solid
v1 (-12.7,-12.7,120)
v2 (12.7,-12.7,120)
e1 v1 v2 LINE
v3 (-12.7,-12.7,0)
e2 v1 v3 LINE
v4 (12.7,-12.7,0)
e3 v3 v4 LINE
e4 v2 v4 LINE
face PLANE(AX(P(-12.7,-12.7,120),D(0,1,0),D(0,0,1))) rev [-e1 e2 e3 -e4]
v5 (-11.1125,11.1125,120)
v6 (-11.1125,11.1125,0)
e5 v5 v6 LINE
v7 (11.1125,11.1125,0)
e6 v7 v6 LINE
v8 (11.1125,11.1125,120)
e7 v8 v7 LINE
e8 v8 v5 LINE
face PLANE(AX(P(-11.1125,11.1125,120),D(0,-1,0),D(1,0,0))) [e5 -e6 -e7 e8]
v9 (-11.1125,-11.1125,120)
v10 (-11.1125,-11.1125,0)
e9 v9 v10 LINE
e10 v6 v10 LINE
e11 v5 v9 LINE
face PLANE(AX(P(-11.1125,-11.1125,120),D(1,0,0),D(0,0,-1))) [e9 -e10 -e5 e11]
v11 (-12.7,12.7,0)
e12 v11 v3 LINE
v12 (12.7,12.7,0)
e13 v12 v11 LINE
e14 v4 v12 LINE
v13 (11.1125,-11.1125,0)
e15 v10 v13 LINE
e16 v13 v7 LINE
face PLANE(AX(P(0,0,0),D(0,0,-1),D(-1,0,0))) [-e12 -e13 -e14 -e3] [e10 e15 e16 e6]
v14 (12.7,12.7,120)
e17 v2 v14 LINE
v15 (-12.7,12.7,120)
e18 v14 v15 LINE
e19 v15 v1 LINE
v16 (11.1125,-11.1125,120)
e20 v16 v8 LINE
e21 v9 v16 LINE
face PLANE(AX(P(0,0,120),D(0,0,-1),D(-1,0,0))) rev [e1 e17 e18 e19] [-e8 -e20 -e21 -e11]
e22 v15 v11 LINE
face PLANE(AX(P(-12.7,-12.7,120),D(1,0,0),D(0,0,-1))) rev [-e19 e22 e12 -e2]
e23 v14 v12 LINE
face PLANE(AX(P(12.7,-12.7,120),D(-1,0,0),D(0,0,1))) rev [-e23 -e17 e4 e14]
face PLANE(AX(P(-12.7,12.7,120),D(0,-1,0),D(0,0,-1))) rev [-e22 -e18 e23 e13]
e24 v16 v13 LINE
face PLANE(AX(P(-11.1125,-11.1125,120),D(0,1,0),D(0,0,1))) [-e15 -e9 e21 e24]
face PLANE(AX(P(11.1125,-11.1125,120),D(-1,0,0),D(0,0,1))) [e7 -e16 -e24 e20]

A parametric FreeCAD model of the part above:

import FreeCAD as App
import Part
import Sketcher
Q = App.Units.Quantity

doc = App.newDocument("Part")
body = doc.addObject("PartDesign::Body", "Body")

# Sketch on XY plane
sketch1 = body.newObject("Sketcher::SketchObject", "Sketch")
sketch1.AttachmentSupport = (doc.getObject("XY_Plane"), [""])
sketch1.MapMode = "FlatFace"
sketch1.addGeometry(Part.LineSegment(App.Vector(-12.7, 12.7, 0), App.Vector(-12.7, -12.7, 0)), False)
sketch1.addGeometry(Part.LineSegment(App.Vector(-12.7, -12.7, 0), App.Vector(12.7, -12.7, 0)), False)
sketch1.addGeometry(Part.LineSegment(App.Vector(12.7, -12.7, 0), App.Vector(12.7, 12.7, 0)), False)
sketch1.addGeometry(Part.LineSegment(App.Vector(12.7, 12.7, 0), App.Vector(-12.7, 12.7, 0)), False)
sketch1.addGeometry(Part.LineSegment(App.Vector(11.1125, -11.1125, 0), App.Vector(-11.1125, -11.1125, 0)), False)
sketch1.addGeometry(Part.LineSegment(App.Vector(-11.1125, -11.1125, 0), App.Vector(-11.1125, 11.1125, 0)), False)
sketch1.addGeometry(Part.LineSegment(App.Vector(-11.1125, 11.1125, 0), App.Vector(11.1125, 11.1125, 0)), False)
sketch1.addGeometry(Part.LineSegment(App.Vector(11.1125, 11.1125, 0), App.Vector(11.1125, -11.1125, 0)), False)
sketch1.addConstraint(Sketcher.Constraint("Coincident", 0, 2, 1, 1))
sketch1.addConstraint(Sketcher.Constraint("Coincident", 1, 2, 2, 1))
sketch1.addConstraint(Sketcher.Constraint("Coincident", 2, 2, 3, 1))
sketch1.addConstraint(Sketcher.Constraint("Coincident", 3, 2, 0, 1))
sketch1.addConstraint(Sketcher.Constraint("Coincident", 4, 2, 5, 1))
sketch1.addConstraint(Sketcher.Constraint("Coincident", 5, 2, 6, 1))
sketch1.addConstraint(Sketcher.Constraint("Coincident", 6, 2, 7, 1))
sketch1.addConstraint(Sketcher.Constraint("Coincident", 7, 2, 4, 1))
sketch1.addConstraint(Sketcher.Constraint("Vertical", 0))
sketch1.addConstraint(Sketcher.Constraint("Horizontal", 1))
sketch1.addConstraint(Sketcher.Constraint("Vertical", 2))
sketch1.addConstraint(Sketcher.Constraint("Horizontal", 3))
sketch1.addConstraint(Sketcher.Constraint("Horizontal", 4))
sketch1.addConstraint(Sketcher.Constraint("Vertical", 5))
sketch1.addConstraint(Sketcher.Constraint("Horizontal", 6))
sketch1.addConstraint(Sketcher.Constraint("Vertical", 7))
sketch1.addConstraint(Sketcher.Constraint("Symmetric", 0, 2, 2, 2, -1, 1))
sketch1.addConstraint(Sketcher.Constraint("Symmetric", 4, 2, 6, 2, -1, 1))
sketch1.addConstraint(Sketcher.Constraint("Equal", 3, 0))
sketch1.addConstraint(Sketcher.Constraint("Equal", 6, 5))
sketch1.addConstraint(Sketcher.Constraint("DistanceX", 1, 1, 1, 2, Q("1 in")))
sketch1.addConstraint(Sketcher.Constraint("DistanceX", 4, 2, 4, 1, Q("0.875 in")))
pad1 = body.newObject("PartDesign::Pad", "Pad")
pad1.Profile = sketch1
pad1.Length = 120

doc.recompute()
